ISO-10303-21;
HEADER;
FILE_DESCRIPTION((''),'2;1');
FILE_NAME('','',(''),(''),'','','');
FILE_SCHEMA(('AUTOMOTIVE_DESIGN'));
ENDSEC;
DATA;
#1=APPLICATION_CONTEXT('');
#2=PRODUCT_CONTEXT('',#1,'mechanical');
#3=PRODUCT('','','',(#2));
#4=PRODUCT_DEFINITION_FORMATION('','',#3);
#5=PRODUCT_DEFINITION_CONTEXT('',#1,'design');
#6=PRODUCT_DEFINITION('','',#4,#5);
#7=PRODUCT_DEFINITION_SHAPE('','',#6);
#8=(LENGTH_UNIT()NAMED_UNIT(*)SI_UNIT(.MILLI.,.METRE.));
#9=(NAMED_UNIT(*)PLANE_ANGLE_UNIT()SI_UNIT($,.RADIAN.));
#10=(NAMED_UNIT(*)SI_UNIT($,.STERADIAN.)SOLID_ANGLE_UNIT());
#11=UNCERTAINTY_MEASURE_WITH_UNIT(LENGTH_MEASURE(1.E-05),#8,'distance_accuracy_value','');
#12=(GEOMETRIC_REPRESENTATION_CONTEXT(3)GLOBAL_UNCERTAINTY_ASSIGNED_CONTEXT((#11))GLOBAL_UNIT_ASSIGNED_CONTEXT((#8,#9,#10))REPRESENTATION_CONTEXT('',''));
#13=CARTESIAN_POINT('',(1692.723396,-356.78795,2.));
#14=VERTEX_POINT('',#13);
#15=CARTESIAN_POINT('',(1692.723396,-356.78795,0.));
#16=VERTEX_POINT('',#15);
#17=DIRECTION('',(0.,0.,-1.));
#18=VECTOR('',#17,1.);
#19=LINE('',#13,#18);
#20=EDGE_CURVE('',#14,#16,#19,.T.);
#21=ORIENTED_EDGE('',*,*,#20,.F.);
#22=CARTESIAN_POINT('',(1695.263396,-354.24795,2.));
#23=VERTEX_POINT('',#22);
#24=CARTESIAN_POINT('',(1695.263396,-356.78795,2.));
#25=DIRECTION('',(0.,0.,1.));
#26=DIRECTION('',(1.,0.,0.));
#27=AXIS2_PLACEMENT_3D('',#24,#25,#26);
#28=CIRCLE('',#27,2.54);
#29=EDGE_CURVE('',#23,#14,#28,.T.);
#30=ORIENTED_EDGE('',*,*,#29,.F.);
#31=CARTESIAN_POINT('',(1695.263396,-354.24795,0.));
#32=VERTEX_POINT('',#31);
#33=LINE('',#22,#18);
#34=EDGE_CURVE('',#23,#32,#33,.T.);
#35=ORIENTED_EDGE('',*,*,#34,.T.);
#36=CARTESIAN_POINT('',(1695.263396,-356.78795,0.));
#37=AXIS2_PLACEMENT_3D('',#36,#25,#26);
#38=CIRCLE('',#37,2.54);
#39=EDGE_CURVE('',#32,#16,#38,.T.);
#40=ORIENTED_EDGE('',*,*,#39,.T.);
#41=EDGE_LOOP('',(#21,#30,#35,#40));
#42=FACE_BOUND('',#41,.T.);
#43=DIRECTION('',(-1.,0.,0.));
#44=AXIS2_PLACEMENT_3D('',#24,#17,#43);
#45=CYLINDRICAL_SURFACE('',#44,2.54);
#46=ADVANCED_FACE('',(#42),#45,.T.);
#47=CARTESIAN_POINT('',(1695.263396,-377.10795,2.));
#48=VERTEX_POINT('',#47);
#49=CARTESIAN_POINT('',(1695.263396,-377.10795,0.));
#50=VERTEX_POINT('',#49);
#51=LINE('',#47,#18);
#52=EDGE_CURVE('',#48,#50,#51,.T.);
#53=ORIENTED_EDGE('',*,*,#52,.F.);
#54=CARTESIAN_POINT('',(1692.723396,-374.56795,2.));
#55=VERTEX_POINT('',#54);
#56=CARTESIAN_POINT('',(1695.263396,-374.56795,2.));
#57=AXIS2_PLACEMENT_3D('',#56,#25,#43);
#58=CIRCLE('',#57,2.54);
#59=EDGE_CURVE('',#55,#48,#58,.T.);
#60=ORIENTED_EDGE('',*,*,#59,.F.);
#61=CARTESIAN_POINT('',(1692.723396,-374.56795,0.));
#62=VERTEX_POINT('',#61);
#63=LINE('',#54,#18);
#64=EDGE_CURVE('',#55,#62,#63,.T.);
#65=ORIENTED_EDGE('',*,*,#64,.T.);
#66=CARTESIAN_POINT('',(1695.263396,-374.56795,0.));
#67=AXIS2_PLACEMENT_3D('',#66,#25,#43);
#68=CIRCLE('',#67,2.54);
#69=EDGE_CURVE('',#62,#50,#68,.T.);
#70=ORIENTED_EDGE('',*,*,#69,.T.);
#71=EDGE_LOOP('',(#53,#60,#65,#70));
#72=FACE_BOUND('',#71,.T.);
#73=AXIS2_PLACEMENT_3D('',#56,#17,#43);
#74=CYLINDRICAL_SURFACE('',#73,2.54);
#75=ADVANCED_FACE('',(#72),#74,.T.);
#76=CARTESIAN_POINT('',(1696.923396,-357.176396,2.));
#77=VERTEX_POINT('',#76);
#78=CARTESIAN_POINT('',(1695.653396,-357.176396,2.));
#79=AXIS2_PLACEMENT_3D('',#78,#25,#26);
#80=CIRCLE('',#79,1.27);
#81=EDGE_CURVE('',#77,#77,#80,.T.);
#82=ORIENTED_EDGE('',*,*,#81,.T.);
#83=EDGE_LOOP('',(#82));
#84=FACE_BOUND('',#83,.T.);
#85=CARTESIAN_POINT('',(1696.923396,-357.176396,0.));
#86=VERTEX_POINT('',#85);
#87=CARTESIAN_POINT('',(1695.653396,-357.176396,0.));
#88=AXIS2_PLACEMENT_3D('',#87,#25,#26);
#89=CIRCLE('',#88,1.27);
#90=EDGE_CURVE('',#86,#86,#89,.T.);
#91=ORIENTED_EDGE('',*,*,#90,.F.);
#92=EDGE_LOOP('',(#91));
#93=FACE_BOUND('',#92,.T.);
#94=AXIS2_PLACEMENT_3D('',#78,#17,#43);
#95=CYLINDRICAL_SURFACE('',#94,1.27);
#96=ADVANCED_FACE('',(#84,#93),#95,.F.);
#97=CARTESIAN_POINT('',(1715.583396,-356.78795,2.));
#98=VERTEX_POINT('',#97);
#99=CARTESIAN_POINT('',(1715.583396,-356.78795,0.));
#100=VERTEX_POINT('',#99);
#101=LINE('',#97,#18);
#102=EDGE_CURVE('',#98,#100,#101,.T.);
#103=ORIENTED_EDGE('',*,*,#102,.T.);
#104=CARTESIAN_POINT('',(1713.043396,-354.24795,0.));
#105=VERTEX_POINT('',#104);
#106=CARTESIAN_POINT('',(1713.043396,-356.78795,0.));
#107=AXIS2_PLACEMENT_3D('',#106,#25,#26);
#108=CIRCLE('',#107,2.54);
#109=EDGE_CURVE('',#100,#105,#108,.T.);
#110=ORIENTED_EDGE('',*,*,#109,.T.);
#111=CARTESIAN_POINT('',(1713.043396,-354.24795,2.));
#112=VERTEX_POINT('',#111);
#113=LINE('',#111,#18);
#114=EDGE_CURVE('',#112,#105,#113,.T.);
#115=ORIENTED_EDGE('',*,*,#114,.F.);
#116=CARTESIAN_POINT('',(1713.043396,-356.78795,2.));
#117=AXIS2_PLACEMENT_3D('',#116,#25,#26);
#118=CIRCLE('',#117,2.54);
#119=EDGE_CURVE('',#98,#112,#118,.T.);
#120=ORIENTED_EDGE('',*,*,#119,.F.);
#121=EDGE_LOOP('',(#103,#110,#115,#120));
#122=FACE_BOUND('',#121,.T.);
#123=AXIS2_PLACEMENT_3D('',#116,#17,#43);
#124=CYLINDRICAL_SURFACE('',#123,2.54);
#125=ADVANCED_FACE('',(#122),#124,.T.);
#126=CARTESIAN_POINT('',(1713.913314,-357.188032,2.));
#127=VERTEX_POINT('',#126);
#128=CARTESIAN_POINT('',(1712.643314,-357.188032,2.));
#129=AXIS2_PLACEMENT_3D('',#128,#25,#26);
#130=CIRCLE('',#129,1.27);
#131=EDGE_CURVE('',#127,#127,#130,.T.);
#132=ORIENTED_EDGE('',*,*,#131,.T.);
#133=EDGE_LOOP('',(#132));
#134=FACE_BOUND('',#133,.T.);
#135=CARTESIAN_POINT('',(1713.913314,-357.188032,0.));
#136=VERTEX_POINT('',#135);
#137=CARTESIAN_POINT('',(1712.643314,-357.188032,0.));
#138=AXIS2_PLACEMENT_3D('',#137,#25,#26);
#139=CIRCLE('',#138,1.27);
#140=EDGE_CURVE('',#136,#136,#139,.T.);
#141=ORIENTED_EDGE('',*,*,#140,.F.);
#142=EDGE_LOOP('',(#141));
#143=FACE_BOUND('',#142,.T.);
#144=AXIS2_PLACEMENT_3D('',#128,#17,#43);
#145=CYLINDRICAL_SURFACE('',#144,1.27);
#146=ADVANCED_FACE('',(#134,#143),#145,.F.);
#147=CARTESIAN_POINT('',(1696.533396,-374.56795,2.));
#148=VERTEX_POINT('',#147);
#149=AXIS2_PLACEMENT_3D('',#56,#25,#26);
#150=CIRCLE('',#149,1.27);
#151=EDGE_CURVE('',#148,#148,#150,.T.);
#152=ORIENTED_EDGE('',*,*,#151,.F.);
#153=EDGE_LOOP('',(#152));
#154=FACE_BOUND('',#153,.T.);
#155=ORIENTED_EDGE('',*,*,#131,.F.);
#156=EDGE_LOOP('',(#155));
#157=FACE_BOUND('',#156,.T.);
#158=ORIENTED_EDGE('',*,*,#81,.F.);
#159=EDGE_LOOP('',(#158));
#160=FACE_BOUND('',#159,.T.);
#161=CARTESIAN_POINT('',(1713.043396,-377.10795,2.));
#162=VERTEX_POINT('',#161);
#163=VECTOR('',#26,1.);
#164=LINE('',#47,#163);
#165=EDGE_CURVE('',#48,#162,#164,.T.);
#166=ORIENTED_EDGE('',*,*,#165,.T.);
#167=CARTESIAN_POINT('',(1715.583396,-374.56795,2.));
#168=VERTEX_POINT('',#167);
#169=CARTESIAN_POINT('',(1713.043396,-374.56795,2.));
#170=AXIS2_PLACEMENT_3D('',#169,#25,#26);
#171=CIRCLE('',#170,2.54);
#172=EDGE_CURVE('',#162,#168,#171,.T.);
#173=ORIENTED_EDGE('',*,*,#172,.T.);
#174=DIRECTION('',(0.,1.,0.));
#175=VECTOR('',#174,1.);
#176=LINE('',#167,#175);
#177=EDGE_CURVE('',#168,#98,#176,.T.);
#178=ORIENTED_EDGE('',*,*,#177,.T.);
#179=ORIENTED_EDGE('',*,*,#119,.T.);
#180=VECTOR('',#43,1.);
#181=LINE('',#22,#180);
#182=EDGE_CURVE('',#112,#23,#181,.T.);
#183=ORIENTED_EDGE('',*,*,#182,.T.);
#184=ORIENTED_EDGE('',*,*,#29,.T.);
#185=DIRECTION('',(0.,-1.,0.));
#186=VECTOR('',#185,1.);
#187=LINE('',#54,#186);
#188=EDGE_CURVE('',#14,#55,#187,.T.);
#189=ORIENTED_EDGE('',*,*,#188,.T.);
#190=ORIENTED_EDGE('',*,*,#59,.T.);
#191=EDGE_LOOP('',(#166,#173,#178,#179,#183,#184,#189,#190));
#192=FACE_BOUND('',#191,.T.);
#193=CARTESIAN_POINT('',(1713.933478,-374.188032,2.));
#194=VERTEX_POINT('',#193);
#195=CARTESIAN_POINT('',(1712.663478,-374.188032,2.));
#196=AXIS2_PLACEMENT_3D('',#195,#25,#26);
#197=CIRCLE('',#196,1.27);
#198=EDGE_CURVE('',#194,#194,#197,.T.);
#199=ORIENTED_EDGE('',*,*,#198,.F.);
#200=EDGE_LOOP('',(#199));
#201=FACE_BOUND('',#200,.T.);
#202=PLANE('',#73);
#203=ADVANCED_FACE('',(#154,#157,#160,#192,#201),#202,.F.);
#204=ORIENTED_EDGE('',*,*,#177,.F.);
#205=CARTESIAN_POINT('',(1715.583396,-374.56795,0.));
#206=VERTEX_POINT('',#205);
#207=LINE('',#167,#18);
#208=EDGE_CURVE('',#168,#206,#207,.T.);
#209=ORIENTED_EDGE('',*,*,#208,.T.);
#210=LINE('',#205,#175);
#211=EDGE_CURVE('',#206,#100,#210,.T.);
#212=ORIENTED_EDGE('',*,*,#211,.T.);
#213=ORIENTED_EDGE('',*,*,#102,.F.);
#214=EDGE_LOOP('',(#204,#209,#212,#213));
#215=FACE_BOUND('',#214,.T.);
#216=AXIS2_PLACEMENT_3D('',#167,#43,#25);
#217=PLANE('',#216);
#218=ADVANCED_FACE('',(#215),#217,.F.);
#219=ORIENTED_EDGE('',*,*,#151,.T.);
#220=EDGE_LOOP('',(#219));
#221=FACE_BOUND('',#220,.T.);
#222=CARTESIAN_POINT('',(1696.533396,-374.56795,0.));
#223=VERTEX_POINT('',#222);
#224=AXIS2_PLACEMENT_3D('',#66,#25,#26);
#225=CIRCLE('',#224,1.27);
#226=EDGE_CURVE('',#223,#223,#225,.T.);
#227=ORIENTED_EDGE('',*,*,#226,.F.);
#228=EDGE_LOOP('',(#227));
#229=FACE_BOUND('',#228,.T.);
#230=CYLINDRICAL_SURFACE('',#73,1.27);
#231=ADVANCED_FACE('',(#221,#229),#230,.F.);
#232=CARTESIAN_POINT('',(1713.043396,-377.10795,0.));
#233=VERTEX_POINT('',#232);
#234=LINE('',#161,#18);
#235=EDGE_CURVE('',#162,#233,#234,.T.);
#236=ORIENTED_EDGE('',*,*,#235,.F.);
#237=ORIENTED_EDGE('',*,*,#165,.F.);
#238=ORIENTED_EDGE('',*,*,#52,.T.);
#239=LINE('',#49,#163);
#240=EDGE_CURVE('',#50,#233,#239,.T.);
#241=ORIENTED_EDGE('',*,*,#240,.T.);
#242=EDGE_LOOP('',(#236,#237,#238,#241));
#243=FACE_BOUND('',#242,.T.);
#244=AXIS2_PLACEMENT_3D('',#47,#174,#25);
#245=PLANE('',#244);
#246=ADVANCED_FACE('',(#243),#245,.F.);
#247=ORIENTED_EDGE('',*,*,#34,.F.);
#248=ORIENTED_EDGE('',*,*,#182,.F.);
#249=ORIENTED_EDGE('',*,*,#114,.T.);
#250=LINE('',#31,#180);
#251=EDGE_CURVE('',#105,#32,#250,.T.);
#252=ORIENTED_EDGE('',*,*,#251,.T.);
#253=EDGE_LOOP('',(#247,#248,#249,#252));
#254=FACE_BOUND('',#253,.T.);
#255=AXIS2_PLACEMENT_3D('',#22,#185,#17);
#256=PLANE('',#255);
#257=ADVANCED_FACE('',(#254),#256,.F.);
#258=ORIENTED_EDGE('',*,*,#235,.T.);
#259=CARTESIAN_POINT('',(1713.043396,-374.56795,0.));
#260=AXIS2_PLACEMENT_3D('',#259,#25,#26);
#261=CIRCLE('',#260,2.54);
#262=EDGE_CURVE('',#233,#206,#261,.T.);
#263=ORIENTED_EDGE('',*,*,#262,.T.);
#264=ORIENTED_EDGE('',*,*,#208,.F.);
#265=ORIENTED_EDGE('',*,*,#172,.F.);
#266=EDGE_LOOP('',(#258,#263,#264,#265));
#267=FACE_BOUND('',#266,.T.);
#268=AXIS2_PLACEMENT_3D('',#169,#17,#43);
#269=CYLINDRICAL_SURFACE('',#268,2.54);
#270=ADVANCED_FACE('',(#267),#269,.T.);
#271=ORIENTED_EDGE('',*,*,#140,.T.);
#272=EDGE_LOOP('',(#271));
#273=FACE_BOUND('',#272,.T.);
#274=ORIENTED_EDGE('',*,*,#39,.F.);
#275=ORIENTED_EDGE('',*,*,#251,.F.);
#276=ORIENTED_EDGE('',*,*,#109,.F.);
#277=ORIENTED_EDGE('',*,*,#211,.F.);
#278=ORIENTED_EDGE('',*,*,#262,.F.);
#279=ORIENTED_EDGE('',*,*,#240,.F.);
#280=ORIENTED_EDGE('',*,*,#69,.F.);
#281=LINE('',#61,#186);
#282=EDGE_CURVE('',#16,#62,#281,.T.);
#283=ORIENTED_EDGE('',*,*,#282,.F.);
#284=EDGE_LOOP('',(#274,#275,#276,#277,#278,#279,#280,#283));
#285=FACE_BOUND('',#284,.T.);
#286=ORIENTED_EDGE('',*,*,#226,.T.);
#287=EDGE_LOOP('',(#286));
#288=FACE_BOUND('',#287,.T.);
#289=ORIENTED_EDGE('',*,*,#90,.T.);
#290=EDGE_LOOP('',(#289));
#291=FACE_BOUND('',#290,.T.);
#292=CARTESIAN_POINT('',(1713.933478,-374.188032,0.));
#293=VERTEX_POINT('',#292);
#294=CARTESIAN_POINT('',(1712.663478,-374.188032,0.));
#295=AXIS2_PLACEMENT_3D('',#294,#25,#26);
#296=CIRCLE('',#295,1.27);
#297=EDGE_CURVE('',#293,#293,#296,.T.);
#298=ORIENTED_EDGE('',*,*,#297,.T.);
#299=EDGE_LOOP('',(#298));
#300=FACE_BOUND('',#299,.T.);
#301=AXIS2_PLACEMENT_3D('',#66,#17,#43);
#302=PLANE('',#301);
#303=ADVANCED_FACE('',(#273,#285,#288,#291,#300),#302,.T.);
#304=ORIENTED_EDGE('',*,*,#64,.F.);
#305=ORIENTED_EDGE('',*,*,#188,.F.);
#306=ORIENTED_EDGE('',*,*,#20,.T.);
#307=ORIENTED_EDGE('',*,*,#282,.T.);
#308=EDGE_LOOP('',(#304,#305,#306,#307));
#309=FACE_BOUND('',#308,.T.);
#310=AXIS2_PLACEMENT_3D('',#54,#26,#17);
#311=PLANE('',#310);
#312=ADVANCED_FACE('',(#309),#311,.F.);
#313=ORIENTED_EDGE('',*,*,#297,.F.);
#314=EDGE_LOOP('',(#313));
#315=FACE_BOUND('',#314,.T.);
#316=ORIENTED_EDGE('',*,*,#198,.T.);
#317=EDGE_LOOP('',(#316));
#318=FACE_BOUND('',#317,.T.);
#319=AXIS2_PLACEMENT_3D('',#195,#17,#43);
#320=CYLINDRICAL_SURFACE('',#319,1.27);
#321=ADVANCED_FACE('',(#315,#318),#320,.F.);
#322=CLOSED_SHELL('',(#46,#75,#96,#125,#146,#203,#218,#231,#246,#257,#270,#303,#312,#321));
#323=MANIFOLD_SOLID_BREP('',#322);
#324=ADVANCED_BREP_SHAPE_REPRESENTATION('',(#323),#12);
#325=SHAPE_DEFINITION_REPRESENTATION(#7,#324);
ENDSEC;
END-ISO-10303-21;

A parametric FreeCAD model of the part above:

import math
import FreeCAD as App
import Part
import Sketcher

V = App.Vector
Q = App.Units.Quantity

doc = App.newDocument("Part")
params = doc.addObject("Spreadsheet::Sheet", "Params")
for row, (alias, value) in enumerate([
    ("sketch1_diameter", "0.1 in"),
    ("sketch1_radius", "0.1 in"),
    ("sketch1_width", "0.7 in"),
    ("pad1_length", "2 mm"),
], start=1):
    params.set(f"A{row}", alias)
    params.set(f"B{row}", "=" + value)
    params.setAlias(f"B{row}", alias)

body = doc.addObject("PartDesign::Body", "Body")

# Sketch on XY plane
sketch1 = body.newObject("Sketcher::SketchObject", "Sketch")
sketch1.AttachmentSupport = (doc.getObject("XY_Plane"), [""])
sketch1.MapMode = "FlatFace"
sketch1.addGeometry([
    Part.LineSegment(V(1695.3, -377.1, 0), V(1713, -377.1, 0)),  # 0
    Part.ArcOfCircle(Part.Circle(V(1713, -374.6, 0), V(0, 0, 1), 2.5), math.radians(-90), math.radians(0)),  # 1
    Part.LineSegment(V(1715.6, -374.6, 0), V(1715.6, -356.8, 0)),  # 2
    Part.ArcOfCircle(Part.Circle(V(1713, -356.8, 0), V(0, 0, 1), 2.5), math.radians(0), math.radians(90)),  # 3
    Part.LineSegment(V(1713, -354.2, 0), V(1695.3, -354.2, 0)),  # 4
    Part.ArcOfCircle(Part.Circle(V(1695.3, -356.8, 0), V(0, 0, 1), 2.5), math.radians(90), math.radians(180)),  # 5
    Part.LineSegment(V(1692.7, -356.8, 0), V(1692.7, -374.6, 0)),  # 6
    Part.ArcOfCircle(Part.Circle(V(1695.3, -374.6, 0), V(0, 0, 1), 2.5), math.radians(-180), math.radians(-90)),  # 7
    Part.Circle(V(1695.3, -374.6, 0), V(0, 0, 1), 1.3),  # 8
    Part.Circle(V(1712.7, -374.2, 0), V(0, 0, 1), 1.3),  # 9
    Part.Circle(V(1695.7, -357.2, 0), V(0, 0, 1), 1.3),  # 10
    Part.Circle(V(1712.6, -357.2, 0), V(0, 0, 1), 1.3),  # 11
], False)
sketch1.addConstraint([
    Sketcher.Constraint("Tangent", 0, 2, 1, 1),
    Sketcher.Constraint("Tangent", 1, 2, 2, 1),
    Sketcher.Constraint("Tangent", 2, 2, 3, 1),
    Sketcher.Constraint("Tangent", 3, 2, 4, 1),
    Sketcher.Constraint("Tangent", 4, 2, 5, 1),
    Sketcher.Constraint("Tangent", 5, 2, 6, 1),
    Sketcher.Constraint("Tangent", 6, 2, 7, 1),
    Sketcher.Constraint("Tangent", 7, 2, 0, 1),
    Sketcher.Constraint("Horizontal", 0),
    Sketcher.Constraint("Vertical", 2),
    Sketcher.Constraint("Horizontal", 4),
    Sketcher.Constraint("Vertical", 6),
    Sketcher.Constraint("Coincident", 8, 3, 7, 3),
    Sketcher.Constraint("Equal", 1, 3),
    Sketcher.Constraint("Equal", 3, 5),
    Sketcher.Constraint("Equal", 5, 7),
    Sketcher.Constraint("Equal", 8, 9),
    Sketcher.Constraint("Equal", 9, 10),
    Sketcher.Constraint("Equal", 10, 11),
    Sketcher.Constraint("Equal", 4, 2),
    Sketcher.Constraint("Diameter", 8, Q("0.1 in")),
    Sketcher.Constraint("Radius", 1, Q("0.1 in")),
    Sketcher.Constraint("DistanceX", 0, 1, 0, 2, Q("0.7 in")),
    Sketcher.Constraint("DistanceX", 5, 3, 10, 3, Q("0.39 mm")),
    Sketcher.Constraint("DistanceY", 9, 3, 11, 3, Q("17 mm")),
    Sketcher.Constraint("DistanceY", 1, 3, -1, 1, Q("374.56795 mm")),
    Sketcher.Constraint("DistanceY", 9, 3, -1, 1, Q("374.188032 mm")),
    Sketcher.Constraint("DistanceX", 9, 3, 1, 3, Q("0.379918 mm")),
    Sketcher.Constraint("DistanceX", 11, 3, 3, 3, Q("0.400082 mm")),
    Sketcher.Constraint("DistanceX", -1, 1, 1, 3, Q("1713.043396 mm")),
    Sketcher.Constraint("DistanceY", 10, 3, -1, 1, Q("357.176396 mm")),
])
sketch1.setExpression("Constraints[20]", "Params.sketch1_diameter")
sketch1.setExpression("Constraints[21]", "Params.sketch1_radius")
sketch1.setExpression("Constraints[22]", "Params.sketch1_width")
pad1 = body.newObject("PartDesign::Pad", "Pad")
pad1.Profile = sketch1
pad1.setExpression("Length", "Params.pad1_length")

doc.recompute()
